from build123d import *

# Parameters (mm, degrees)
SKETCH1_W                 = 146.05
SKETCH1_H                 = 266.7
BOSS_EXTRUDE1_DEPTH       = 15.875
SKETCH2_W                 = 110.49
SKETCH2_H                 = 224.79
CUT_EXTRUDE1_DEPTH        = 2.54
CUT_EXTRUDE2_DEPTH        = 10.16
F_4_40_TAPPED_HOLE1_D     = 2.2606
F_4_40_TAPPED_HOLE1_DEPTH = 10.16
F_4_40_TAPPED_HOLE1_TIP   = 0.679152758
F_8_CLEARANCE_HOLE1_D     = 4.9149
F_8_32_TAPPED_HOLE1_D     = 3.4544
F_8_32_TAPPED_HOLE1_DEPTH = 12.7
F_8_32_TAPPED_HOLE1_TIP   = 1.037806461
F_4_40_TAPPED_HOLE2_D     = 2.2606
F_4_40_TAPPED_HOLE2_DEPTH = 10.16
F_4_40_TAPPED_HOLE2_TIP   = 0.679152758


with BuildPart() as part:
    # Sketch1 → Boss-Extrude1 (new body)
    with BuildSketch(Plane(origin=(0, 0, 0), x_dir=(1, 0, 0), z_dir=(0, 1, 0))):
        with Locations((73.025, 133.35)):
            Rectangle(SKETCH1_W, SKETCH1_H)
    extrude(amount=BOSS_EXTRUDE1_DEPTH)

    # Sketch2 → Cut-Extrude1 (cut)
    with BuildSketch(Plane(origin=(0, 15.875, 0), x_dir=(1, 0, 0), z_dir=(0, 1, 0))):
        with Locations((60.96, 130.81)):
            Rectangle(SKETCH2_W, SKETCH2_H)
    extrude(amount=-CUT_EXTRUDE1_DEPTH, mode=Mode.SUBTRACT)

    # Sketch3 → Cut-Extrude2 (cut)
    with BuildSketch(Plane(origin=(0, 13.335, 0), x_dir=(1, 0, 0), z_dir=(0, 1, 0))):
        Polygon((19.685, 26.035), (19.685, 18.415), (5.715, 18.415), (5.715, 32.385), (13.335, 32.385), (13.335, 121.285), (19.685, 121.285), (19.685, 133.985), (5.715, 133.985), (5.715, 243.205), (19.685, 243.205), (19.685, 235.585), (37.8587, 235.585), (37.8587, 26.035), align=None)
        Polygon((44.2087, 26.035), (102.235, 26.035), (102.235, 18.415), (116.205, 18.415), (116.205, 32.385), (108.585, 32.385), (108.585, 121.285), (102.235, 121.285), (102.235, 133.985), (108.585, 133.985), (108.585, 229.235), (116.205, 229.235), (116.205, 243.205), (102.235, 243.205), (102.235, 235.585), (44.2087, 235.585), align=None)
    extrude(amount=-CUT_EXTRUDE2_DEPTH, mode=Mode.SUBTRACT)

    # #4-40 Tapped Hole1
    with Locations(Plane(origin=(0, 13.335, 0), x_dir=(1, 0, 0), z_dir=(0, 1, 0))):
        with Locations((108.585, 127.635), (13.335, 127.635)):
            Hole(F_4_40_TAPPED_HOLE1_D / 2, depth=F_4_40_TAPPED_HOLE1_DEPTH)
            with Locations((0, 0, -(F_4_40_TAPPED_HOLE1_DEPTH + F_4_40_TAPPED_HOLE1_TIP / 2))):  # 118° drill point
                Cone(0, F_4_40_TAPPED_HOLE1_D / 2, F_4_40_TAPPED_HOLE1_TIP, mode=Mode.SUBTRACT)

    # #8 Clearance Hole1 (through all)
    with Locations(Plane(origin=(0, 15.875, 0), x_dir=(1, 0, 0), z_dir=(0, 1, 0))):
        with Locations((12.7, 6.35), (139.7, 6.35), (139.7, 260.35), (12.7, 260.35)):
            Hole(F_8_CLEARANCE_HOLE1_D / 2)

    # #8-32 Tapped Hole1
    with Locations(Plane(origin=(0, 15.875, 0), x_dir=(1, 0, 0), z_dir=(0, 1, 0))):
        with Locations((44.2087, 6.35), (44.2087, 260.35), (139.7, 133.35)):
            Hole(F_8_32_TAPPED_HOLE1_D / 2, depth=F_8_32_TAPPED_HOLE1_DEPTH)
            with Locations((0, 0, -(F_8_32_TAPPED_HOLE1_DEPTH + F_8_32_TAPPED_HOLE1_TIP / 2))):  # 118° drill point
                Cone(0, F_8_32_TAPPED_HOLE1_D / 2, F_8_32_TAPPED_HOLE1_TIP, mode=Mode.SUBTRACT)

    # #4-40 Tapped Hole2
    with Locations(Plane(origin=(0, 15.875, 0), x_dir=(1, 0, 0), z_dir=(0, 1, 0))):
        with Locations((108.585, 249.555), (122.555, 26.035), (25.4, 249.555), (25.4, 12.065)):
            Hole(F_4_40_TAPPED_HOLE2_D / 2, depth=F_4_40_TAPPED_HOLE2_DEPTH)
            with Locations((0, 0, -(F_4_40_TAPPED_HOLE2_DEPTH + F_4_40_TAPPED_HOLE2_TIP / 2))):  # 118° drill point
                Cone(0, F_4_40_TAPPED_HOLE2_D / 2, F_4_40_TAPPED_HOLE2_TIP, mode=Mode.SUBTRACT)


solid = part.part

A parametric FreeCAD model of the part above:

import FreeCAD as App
import Part
import Sketcher
from FreeCAD import Vector
Q = App.Units.Quantity

doc = App.newDocument("Part")
body = doc.addObject("PartDesign::Body", "Body")

# Sketch on XZ plane
sketch1 = body.newObject("Sketcher::SketchObject", "Sketch")
sketch1.AttachmentSupport = (doc.getObject("XZ_Plane"), [""])
sketch1.MapMode = "FlatFace"
sketch1.addGeometry([
    Part.LineSegment(Vector(0, -267, 0), Vector(0, 0, 0)),
    Part.LineSegment(Vector(0, 0, 0), Vector(146, 0, 0)),
    Part.LineSegment(Vector(146, 0, 0), Vector(146, -267, 0)),
    Part.LineSegment(Vector(146, -267, 0), Vector(0, -267, 0)),
], False)
sketch1.addConstraint([
    Sketcher.Constraint("Coincident", 0, 2, 1, 1),
    Sketcher.Constraint("Coincident", 1, 2, 2, 1),
    Sketcher.Constraint("Coincident", 2, 2, 3, 1),
    Sketcher.Constraint("Coincident", 3, 2, 0, 1),
    Sketcher.Constraint("Vertical", 0),
    Sketcher.Constraint("Horizontal", 1),
    Sketcher.Constraint("Vertical", 2),
    Sketcher.Constraint("Horizontal", 3),
    Sketcher.Constraint("Coincident", 0, 2, -1, 1),
    Sketcher.Constraint("DistanceY", 0, 1, 0, 2, Q("10.5 in")),
    Sketcher.Constraint("DistanceX", 1, 1, 1, 2, Q("5.75 in")),
])
pad1 = body.newObject("PartDesign::Pad", "Pad")
pad1.Profile = sketch1
pad1.Length = Q("0.625 in")
pad1.Reversed = True

# Sketch on XZ plane
sketch2 = body.newObject("Sketcher::SketchObject", "Sketch001")
sketch2.AttachmentSupport = (doc.getObject("XZ_Plane"), [""])
sketch2.MapMode = "FlatFace"
sketch2.AttachmentOffset = App.Placement(Vector(0, 0, -0.625 * 25.4), App.Rotation())
sketch2.addGeometry([
    Part.LineSegment(Vector(6, -243, 0), Vector(6, -18, 0)),
    Part.LineSegment(Vector(6, -18, 0), Vector(116, -18, 0)),
    Part.LineSegment(Vector(116, -18, 0), Vector(116, -243, 0)),
    Part.LineSegment(Vector(116, -243, 0), Vector(6, -243, 0)),
], False)
sketch2.addConstraint([
    Sketcher.Constraint("Coincident", 0, 2, 1, 1),
    Sketcher.Constraint("Coincident", 1, 2, 2, 1),
    Sketcher.Constraint("Coincident", 2, 2, 3, 1),
    Sketcher.Constraint("Coincident", 3, 2, 0, 1),
    Sketcher.Constraint("Vertical", 0),
    Sketcher.Constraint("Horizontal", 1),
    Sketcher.Constraint("Vertical", 2),
    Sketcher.Constraint("Horizontal", 3),
    Sketcher.Constraint("DistanceX", 1, 1, 1, 2, Q("4.35 in")),
    Sketcher.Constraint("DistanceY", 0, 1, 0, 2, Q("8.85 in")),
    Sketcher.Constraint("DistanceX", -1, 1, 0, 2, Q("0.225 in")),
    Sketcher.Constraint("DistanceY", 0, 2, -1, 1, Q("0.725 in")),
])
pocket1 = body.newObject("PartDesign::Pocket", "Pocket")
pocket1.Profile = sketch2
pocket1.Length = Q("0.1 in")
pocket1.Reversed = True

# Sketch on XZ plane
sketch3 = body.newObject("Sketcher::SketchObject", "Sketch002")
sketch3.AttachmentSupport = (doc.getObject("XZ_Plane"), [""])
sketch3.MapMode = "FlatFace"
sketch3.AttachmentOffset = App.Placement(Vector(0, 0, -0.525 * 25.4), App.Rotation())
sketch3.addGeometry([
    Part.LineSegment(Vector(20, -18, 0), Vector(20, -26, 0)),  # 0
    Part.LineSegment(Vector(20, -26, 0), Vector(38, -26, 0)),  # 1
    Part.LineSegment(Vector(38, -26, 0), Vector(38, -236, 0)),  # 2
    Part.LineSegment(Vector(38, -236, 0), Vector(20, -236, 0)),  # 3
    Part.LineSegment(Vector(20, -236, 0), Vector(20, -243, 0)),  # 4
    Part.LineSegment(Vector(20, -243, 0), Vector(6, -243, 0)),  # 5
    Part.LineSegment(Vector(6, -243, 0), Vector(6, -134, 0)),  # 6
    Part.LineSegment(Vector(6, -134, 0), Vector(20, -134, 0)),  # 7
    Part.LineSegment(Vector(20, -134, 0), Vector(20, -121, 0)),  # 8
    Part.LineSegment(Vector(20, -121, 0), Vector(13, -121, 0)),  # 9
    Part.LineSegment(Vector(13, -121, 0), Vector(13, -32, 0)),  # 10
    Part.LineSegment(Vector(13, -32, 0), Vector(6, -32, 0)),  # 11
    Part.LineSegment(Vector(6, -32, 0), Vector(6, -18, 0)),  # 12
    Part.LineSegment(Vector(6, -18, 0), Vector(20, -18, 0)),  # 13
    Part.LineSegment(Vector(44, -26, 0), Vector(102, -26, 0)),  # 14
    Part.LineSegment(Vector(102, -26, 0), Vector(102, -18, 0)),  # 15
    Part.LineSegment(Vector(102, -18, 0), Vector(116, -18, 0)),  # 16
    Part.LineSegment(Vector(116, -18, 0), Vector(116, -32, 0)),  # 17
    Part.LineSegment(Vector(116, -32, 0), Vector(109, -32, 0)),  # 18
    Part.LineSegment(Vector(109, -32, 0), Vector(109, -121, 0)),  # 19
    Part.LineSegment(Vector(109, -121, 0), Vector(102, -121, 0)),  # 20
    Part.LineSegment(Vector(102, -121, 0), Vector(102, -134, 0)),  # 21
    Part.LineSegment(Vector(102, -134, 0), Vector(109, -134, 0)),  # 22
    Part.LineSegment(Vector(109, -134, 0), Vector(109, -229, 0)),  # 23
    Part.LineSegment(Vector(109, -229, 0), Vector(116, -229, 0)),  # 24
    Part.LineSegment(Vector(116, -229, 0), Vector(116, -243, 0)),  # 25
    Part.LineSegment(Vector(116, -243, 0), Vector(102, -243, 0)),  # 26
    Part.LineSegment(Vector(102, -243, 0), Vector(102, -236, 0)),  # 27
    Part.LineSegment(Vector(102, -236, 0), Vector(44, -236, 0)),  # 28
    Part.LineSegment(Vector(44, -236, 0), Vector(44, -26, 0)),  # 29
], False)
sketch3.addConstraint([
    Sketcher.Constraint("Coincident", 0, 2, 1, 1),
    Sketcher.Constraint("Coincident", 1, 2, 2, 1),
    Sketcher.Constraint("Coincident", 2, 2, 3, 1),
    Sketcher.Constraint("Coincident", 3, 2, 4, 1),
    Sketcher.Constraint("Coincident", 4, 2, 5, 1),
    Sketcher.Constraint("Coincident", 5, 2, 6, 1),
    Sketcher.Constraint("Coincident", 6, 2, 7, 1),
    Sketcher.Constraint("Coincident", 7, 2, 8, 1),
    Sketcher.Constraint("Coincident", 8, 2, 9, 1),
    Sketcher.Constraint("Coincident", 9, 2, 10, 1),
    Sketcher.Constraint("Coincident", 10, 2, 11, 1),
    Sketcher.Constraint("Coincident", 11, 2, 12, 1),
    Sketcher.Constraint("Coincident", 12, 2, 13, 1),
    Sketcher.Constraint("Coincident", 13, 2, 0, 1),
    Sketcher.Constraint("Coincident", 14, 2, 15, 1),
    Sketcher.Constraint("Coincident", 15, 2, 16, 1),
    Sketcher.Constraint("Coincident", 16, 2, 17, 1),
    Sketcher.Constraint("Coincident", 17, 2, 18, 1),
    Sketcher.Constraint("Coincident", 18, 2, 19, 1),
    Sketcher.Constraint("Coincident", 19, 2, 20, 1),
    Sketcher.Constraint("Coincident", 20, 2, 21, 1),
    Sketcher.Constraint("Coincident", 21, 2, 22, 1),
    Sketcher.Constraint("Coincident", 22, 2, 23, 1),
    Sketcher.Constraint("Coincident", 23, 2, 24, 1),
    Sketcher.Constraint("Coincident", 24, 2, 25, 1),
    Sketcher.Constraint("Coincident", 25, 2, 26, 1),
    Sketcher.Constraint("Coincident", 26, 2, 27, 1),
    Sketcher.Constraint("Coincident", 27, 2, 28, 1),
    Sketcher.Constraint("Coincident", 28, 2, 29, 1),
    Sketcher.Constraint("Coincident", 29, 2, 14, 1),
    Sketcher.Constraint("Vertical", 0),
    Sketcher.Constraint("Horizontal", 1),
    Sketcher.Constraint("Vertical", 2),
    Sketcher.Constraint("Horizontal", 3),
    Sketcher.Constraint("Vertical", 4),
    Sketcher.Constraint("Horizontal", 5),
    Sketcher.Constraint("Vertical", 6),
    Sketcher.Constraint("Horizontal", 7),
    Sketcher.Constraint("Vertical", 8),
    Sketcher.Constraint("Horizontal", 9),
    Sketcher.Constraint("Vertical", 10),
    Sketcher.Constraint("Horizontal", 11),
    Sketcher.Constraint("Vertical", 12),
    Sketcher.Constraint("Horizontal", 13),
    Sketcher.Constraint("Horizontal", 14),
    Sketcher.Constraint("Vertical", 15),
    Sketcher.Constraint("Horizontal", 16),
    Sketcher.Constraint("Vertical", 17),
    Sketcher.Constraint("Horizontal", 18),
    Sketcher.Constraint("Vertical", 19),
    Sketcher.Constraint("Horizontal", 20),
    Sketcher.Constraint("Vertical", 21),
    Sketcher.Constraint("Horizontal", 22),
    Sketcher.Constraint("Vertical", 23),
    Sketcher.Constraint("Horizontal", 24),
    Sketcher.Constraint("Vertical", 25),
    Sketcher.Constraint("Horizontal", 26),
    Sketcher.Constraint("Vertical", 27),
    Sketcher.Constraint("Horizontal", 28),
    Sketcher.Constraint("Vertical", 29),
    Sketcher.Constraint("Horizontal", 1, 2, 14, 2),
    Sketcher.Constraint("Horizontal", 13, 2, 15, 2),
    Sketcher.Constraint("Horizontal", 11, 2, 17, 2),
    Sketcher.Constraint("Horizontal", 9, 2, 19, 2),
    Sketcher.Constraint("Horizontal", 7, 2, 21, 2),
    Sketcher.Constraint("Horizontal", 5, 2, 25, 2),
    Sketcher.Constraint("Horizontal", 3, 2, 27, 2),
    Sketcher.Constraint("Vertical", 0, 2, 3, 2),
    Sketcher.Constraint("Vertical", 4, 2, 7, 2),
    Sketcher.Constraint("Vertical", 6, 2, 11, 2),
    Sketcher.Constraint("Vertical", 15, 2, 20, 2),
    Sketcher.Constraint("Vertical", 19, 2, 22, 2),
    Sketcher.Constraint("Vertical", 17, 2, 24, 2),
    Sketcher.Constraint("Vertical", 21, 2, 26, 2),
    Sketcher.Constraint("Equal", 13, 16),
    Sketcher.Constraint("Equal", 11, 18),
    Sketcher.Constraint("Equal", 24, 0),
    Sketcher.Constraint("Equal", 0, 4),
    Sketcher.Constraint("Equal", 26, 12),
    Sketcher.Constraint("Equal", 17, 25),
    Sketcher.Constraint("DistanceX", 11, 2, 11, 1, Q("0.3 in")),
    Sketcher.Constraint("DistanceY", 6, 1, 6, 2, Q("4.3 in")),
    Sketcher.Constraint("DistanceY", 8, 1, 8, 2, Q("0.5 in")),
    Sketcher.Constraint("DistanceY", 10, 1, 10, 2, Q("3.5 in")),
    Sketcher.Constraint("DistanceX", 5, 2, 5, 1, Q("0.55 in")),
    Sketcher.Constraint("DistanceX", 10, 2, 14, 2, Q("3.5 in")),
    Sketcher.Constraint("DistanceX", 2, 2, 28, 2, Q("0.25 in")),
    Sketcher.Constraint("DistanceX", 1, 1, 1, 2, Q("0.7155 in")),
    Sketcher.Constraint("DistanceX", -1, 1, 0, 2, Q("0.775 in")),
    Sketcher.Constraint("DistanceY", 0, 2, -1, 1, Q("1.025 in")),
])
pocket2 = body.newObject("PartDesign::Pocket", "Pocket001")
pocket2.Profile = sketch3
pocket2.Length = Q("0.4 in")
pocket2.Reversed = True

# Sketch on XZ plane
sketch4 = body.newObject("Sketcher::SketchObject", "Sketch003")
sketch4.AttachmentSupport = (doc.getObject("XZ_Plane"), [""])
sketch4.MapMode = "FlatFace"
sketch4.AttachmentOffset = App.Placement(Vector(0, 0, -0.525 * 25.4), App.Rotation())
sketch4.addGeometry([
    Part.Circle(Vector(108.6, -127.6, 0), Vector(0, 0, 1), 1.1),
    Part.Circle(Vector(13.3, -127.6, 0), Vector(0, 0, 1), 1.1),
], False)
sketch4.addConstraint([
    Sketcher.Constraint("Equal", 0, 1),
    Sketcher.Constraint("Horizontal", 0, 3, 1, 3),
    Sketcher.Constraint("Diameter", 0, Q("0.089 in")),
    Sketcher.Constraint("DistanceX", 1, 3, 0, 3, Q("3.75 in")),
    Sketcher.Constraint("DistanceX", -1, 1, 0, 3, Q("4.275 in")),
    Sketcher.Constraint("DistanceY", 0, 3, -1, 1, Q("5.025 in")),
])
doc.recompute()
hole = body.newObject("PartDesign::Hole", "Hole")
hole.Profile = sketch4
hole.ThreadType = "None"
hole.Diameter = Q("0.089 in")
hole.DepthType = "Dimension"
hole.Depth = Q("0.4 in")
hole.DrillPoint = "Angled"
hole.DrillPointAngle = 118
hole.Reversed = True

# Sketch on XZ plane
sketch5 = body.newObject("Sketcher::SketchObject", "Sketch004")
sketch5.AttachmentSupport = (doc.getObject("XZ_Plane"), [""])
sketch5.MapMode = "FlatFace"
sketch5.AttachmentOffset = App.Placement(Vector(0, 0, -0.625 * 25.4), App.Rotation())
sketch5.addGeometry([
    Part.Circle(Vector(12.7, -6.3, 0), Vector(0, 0, 1), 2.5),
    Part.Circle(Vector(139.7, -6.3, 0), Vector(0, 0, 1), 2.5),
    Part.Circle(Vector(139.7, -260.4, 0), Vector(0, 0, 1), 2.5),
    Part.Circle(Vector(12.7, -260.4, 0), Vector(0, 0, 1), 2.5),
], False)
sketch5.addConstraint([
    Sketcher.Constraint("Equal", 0, 1),
    Sketcher.Constraint("Equal", 1, 2),
    Sketcher.Constraint("Equal", 2, 3),
    Sketcher.Constraint("Horizontal", 0, 3, 1, 3),
    Sketcher.Constraint("Horizontal", 2, 3, 3, 3),
    Sketcher.Constraint("Vertical", 1, 3, 2, 3),
    Sketcher.Constraint("Vertical", 0, 3, 3, 3),
    Sketcher.Constraint("DistanceX", 0, 3, 1, 3, Q("5 in")),
    Sketcher.Constraint("DistanceY", 2, 3, 1, 3, Q("10 in")),
    Sketcher.Constraint("Diameter", 0, Q("0.1935 in")),
    Sketcher.Constraint("DistanceX", -1, 1, 0, 3, Q("0.5 in")),
    Sketcher.Constraint("DistanceY", 0, 3, -1, 1, Q("0.25 in")),
])
doc.recompute()
hole2 = body.newObject("PartDesign::Hole", "Hole001")
hole2.Profile = sketch5
hole2.ThreadType = "None"
hole2.Diameter = Q("0.1935 in")
hole2.DepthType = "ThroughAll"
hole2.Reversed = True

# Sketch on XZ plane
sketch6 = body.newObject("Sketcher::SketchObject", "Sketch005")
sketch6.AttachmentSupport = (doc.getObject("XZ_Plane"), [""])
sketch6.MapMode = "FlatFace"
sketch6.AttachmentOffset = App.Placement(Vector(0, 0, -0.625 * 25.4), App.Rotation())
sketch6.addGeometry([
    Part.Circle(Vector(44.2, -6.3, 0), Vector(0, 0, 1), 1.7),
    Part.Circle(Vector(44.2, -260.4, 0), Vector(0, 0, 1), 1.7),
    Part.Circle(Vector(139.7, -133.3, 0), Vector(0, 0, 1), 1.7),
], False)
sketch6.addConstraint([
    Sketcher.Constraint("Equal", 0, 1),
    Sketcher.Constraint("Equal", 1, 2),
    Sketcher.Constraint("Vertical", 0, 3, 1, 3),
    Sketcher.Constraint("Diameter", 0, Q("0.136 in")),
    Sketcher.Constraint("DistanceY", 1, 3, 0, 3, Q("10 in")),
    Sketcher.Constraint("DistanceY", 2, 3, 0, 3, Q("5 in")),
    Sketcher.Constraint("DistanceX", -1, 1, 2, 3, Q("5.5 in")),
    Sketcher.Constraint("DistanceY", 0, 3, -1, 1, Q("0.25 in")),
    Sketcher.Constraint("DistanceX", -1, 1, 0, 3, Q("1.7405 in")),
])
doc.recompute()
hole3 = body.newObject("PartDesign::Hole", "Hole002")
hole3.Profile = sketch6
hole3.ThreadType = "None"
hole3.Diameter = Q("0.136 in")
hole3.DepthType = "Dimension"
hole3.Depth = Q("0.5 in")
hole3.DrillPoint = "Angled"
hole3.DrillPointAngle = 118
hole3.Reversed = True

# Sketch on XZ plane
sketch7 = body.newObject("Sketcher::SketchObject", "Sketch006")
sketch7.AttachmentSupport = (doc.getObject("XZ_Plane"), [""])
sketch7.MapMode = "FlatFace"
sketch7.AttachmentOffset = App.Placement(Vector(0, 0, -0.625 * 25.4), App.Rotation())
sketch7.addGeometry([
    Part.Circle(Vector(108.6, -249.6, 0), Vector(0, 0, 1), 1.1),
    Part.Circle(Vector(122.6, -26, 0), Vector(0, 0, 1), 1.1),
    Part.Circle(Vector(25.4, -249.6, 0), Vector(0, 0, 1), 1.1),
    Part.Circle(Vector(25.4, -12.1, 0), Vector(0, 0, 1), 1.1),
], False)
sketch7.addConstraint([
    Sketcher.Constraint("Equal", 0, 1),
    Sketcher.Constraint("Equal", 1, 2),
    Sketcher.Constraint("Equal", 2, 3),
    Sketcher.Constraint("Horizontal", 0, 3, 2, 3),
    Sketcher.Constraint("Vertical", 2, 3, 3, 3),
    Sketcher.Constraint("Diameter", 0, Q("0.089 in")),
    Sketcher.Constraint("DistanceX", -1, 1, 2, 3, Q("1 in")),
    Sketcher.Constraint("DistanceY", 0, 3, 1, 3, Q("8.8 in")),
    Sketcher.Constraint("DistanceX", 0, 3, 1, 3, Q("0.55 in")),
    Sketcher.Constraint("DistanceY", 1, 3, 3, 3, Q("0.55 in")),
    Sketcher.Constraint("DistanceX", -1, 1, 0, 3, Q("4.275 in")),
    Sketcher.Constraint("DistanceY", 0, 3, -1, 1, Q("9.825 in")),
])
doc.recompute()
hole4 = body.newObject("PartDesign::Hole", "Hole003")
hole4.Profile = sketch7
hole4.ThreadType = "None"
hole4.Diameter = Q("0.089 in")
hole4.DepthType = "Dimension"
hole4.Depth = Q("0.4 in")
hole4.DrillPoint = "Angled"
hole4.DrillPointAngle = 118
hole4.Reversed = True

doc.recompute()
